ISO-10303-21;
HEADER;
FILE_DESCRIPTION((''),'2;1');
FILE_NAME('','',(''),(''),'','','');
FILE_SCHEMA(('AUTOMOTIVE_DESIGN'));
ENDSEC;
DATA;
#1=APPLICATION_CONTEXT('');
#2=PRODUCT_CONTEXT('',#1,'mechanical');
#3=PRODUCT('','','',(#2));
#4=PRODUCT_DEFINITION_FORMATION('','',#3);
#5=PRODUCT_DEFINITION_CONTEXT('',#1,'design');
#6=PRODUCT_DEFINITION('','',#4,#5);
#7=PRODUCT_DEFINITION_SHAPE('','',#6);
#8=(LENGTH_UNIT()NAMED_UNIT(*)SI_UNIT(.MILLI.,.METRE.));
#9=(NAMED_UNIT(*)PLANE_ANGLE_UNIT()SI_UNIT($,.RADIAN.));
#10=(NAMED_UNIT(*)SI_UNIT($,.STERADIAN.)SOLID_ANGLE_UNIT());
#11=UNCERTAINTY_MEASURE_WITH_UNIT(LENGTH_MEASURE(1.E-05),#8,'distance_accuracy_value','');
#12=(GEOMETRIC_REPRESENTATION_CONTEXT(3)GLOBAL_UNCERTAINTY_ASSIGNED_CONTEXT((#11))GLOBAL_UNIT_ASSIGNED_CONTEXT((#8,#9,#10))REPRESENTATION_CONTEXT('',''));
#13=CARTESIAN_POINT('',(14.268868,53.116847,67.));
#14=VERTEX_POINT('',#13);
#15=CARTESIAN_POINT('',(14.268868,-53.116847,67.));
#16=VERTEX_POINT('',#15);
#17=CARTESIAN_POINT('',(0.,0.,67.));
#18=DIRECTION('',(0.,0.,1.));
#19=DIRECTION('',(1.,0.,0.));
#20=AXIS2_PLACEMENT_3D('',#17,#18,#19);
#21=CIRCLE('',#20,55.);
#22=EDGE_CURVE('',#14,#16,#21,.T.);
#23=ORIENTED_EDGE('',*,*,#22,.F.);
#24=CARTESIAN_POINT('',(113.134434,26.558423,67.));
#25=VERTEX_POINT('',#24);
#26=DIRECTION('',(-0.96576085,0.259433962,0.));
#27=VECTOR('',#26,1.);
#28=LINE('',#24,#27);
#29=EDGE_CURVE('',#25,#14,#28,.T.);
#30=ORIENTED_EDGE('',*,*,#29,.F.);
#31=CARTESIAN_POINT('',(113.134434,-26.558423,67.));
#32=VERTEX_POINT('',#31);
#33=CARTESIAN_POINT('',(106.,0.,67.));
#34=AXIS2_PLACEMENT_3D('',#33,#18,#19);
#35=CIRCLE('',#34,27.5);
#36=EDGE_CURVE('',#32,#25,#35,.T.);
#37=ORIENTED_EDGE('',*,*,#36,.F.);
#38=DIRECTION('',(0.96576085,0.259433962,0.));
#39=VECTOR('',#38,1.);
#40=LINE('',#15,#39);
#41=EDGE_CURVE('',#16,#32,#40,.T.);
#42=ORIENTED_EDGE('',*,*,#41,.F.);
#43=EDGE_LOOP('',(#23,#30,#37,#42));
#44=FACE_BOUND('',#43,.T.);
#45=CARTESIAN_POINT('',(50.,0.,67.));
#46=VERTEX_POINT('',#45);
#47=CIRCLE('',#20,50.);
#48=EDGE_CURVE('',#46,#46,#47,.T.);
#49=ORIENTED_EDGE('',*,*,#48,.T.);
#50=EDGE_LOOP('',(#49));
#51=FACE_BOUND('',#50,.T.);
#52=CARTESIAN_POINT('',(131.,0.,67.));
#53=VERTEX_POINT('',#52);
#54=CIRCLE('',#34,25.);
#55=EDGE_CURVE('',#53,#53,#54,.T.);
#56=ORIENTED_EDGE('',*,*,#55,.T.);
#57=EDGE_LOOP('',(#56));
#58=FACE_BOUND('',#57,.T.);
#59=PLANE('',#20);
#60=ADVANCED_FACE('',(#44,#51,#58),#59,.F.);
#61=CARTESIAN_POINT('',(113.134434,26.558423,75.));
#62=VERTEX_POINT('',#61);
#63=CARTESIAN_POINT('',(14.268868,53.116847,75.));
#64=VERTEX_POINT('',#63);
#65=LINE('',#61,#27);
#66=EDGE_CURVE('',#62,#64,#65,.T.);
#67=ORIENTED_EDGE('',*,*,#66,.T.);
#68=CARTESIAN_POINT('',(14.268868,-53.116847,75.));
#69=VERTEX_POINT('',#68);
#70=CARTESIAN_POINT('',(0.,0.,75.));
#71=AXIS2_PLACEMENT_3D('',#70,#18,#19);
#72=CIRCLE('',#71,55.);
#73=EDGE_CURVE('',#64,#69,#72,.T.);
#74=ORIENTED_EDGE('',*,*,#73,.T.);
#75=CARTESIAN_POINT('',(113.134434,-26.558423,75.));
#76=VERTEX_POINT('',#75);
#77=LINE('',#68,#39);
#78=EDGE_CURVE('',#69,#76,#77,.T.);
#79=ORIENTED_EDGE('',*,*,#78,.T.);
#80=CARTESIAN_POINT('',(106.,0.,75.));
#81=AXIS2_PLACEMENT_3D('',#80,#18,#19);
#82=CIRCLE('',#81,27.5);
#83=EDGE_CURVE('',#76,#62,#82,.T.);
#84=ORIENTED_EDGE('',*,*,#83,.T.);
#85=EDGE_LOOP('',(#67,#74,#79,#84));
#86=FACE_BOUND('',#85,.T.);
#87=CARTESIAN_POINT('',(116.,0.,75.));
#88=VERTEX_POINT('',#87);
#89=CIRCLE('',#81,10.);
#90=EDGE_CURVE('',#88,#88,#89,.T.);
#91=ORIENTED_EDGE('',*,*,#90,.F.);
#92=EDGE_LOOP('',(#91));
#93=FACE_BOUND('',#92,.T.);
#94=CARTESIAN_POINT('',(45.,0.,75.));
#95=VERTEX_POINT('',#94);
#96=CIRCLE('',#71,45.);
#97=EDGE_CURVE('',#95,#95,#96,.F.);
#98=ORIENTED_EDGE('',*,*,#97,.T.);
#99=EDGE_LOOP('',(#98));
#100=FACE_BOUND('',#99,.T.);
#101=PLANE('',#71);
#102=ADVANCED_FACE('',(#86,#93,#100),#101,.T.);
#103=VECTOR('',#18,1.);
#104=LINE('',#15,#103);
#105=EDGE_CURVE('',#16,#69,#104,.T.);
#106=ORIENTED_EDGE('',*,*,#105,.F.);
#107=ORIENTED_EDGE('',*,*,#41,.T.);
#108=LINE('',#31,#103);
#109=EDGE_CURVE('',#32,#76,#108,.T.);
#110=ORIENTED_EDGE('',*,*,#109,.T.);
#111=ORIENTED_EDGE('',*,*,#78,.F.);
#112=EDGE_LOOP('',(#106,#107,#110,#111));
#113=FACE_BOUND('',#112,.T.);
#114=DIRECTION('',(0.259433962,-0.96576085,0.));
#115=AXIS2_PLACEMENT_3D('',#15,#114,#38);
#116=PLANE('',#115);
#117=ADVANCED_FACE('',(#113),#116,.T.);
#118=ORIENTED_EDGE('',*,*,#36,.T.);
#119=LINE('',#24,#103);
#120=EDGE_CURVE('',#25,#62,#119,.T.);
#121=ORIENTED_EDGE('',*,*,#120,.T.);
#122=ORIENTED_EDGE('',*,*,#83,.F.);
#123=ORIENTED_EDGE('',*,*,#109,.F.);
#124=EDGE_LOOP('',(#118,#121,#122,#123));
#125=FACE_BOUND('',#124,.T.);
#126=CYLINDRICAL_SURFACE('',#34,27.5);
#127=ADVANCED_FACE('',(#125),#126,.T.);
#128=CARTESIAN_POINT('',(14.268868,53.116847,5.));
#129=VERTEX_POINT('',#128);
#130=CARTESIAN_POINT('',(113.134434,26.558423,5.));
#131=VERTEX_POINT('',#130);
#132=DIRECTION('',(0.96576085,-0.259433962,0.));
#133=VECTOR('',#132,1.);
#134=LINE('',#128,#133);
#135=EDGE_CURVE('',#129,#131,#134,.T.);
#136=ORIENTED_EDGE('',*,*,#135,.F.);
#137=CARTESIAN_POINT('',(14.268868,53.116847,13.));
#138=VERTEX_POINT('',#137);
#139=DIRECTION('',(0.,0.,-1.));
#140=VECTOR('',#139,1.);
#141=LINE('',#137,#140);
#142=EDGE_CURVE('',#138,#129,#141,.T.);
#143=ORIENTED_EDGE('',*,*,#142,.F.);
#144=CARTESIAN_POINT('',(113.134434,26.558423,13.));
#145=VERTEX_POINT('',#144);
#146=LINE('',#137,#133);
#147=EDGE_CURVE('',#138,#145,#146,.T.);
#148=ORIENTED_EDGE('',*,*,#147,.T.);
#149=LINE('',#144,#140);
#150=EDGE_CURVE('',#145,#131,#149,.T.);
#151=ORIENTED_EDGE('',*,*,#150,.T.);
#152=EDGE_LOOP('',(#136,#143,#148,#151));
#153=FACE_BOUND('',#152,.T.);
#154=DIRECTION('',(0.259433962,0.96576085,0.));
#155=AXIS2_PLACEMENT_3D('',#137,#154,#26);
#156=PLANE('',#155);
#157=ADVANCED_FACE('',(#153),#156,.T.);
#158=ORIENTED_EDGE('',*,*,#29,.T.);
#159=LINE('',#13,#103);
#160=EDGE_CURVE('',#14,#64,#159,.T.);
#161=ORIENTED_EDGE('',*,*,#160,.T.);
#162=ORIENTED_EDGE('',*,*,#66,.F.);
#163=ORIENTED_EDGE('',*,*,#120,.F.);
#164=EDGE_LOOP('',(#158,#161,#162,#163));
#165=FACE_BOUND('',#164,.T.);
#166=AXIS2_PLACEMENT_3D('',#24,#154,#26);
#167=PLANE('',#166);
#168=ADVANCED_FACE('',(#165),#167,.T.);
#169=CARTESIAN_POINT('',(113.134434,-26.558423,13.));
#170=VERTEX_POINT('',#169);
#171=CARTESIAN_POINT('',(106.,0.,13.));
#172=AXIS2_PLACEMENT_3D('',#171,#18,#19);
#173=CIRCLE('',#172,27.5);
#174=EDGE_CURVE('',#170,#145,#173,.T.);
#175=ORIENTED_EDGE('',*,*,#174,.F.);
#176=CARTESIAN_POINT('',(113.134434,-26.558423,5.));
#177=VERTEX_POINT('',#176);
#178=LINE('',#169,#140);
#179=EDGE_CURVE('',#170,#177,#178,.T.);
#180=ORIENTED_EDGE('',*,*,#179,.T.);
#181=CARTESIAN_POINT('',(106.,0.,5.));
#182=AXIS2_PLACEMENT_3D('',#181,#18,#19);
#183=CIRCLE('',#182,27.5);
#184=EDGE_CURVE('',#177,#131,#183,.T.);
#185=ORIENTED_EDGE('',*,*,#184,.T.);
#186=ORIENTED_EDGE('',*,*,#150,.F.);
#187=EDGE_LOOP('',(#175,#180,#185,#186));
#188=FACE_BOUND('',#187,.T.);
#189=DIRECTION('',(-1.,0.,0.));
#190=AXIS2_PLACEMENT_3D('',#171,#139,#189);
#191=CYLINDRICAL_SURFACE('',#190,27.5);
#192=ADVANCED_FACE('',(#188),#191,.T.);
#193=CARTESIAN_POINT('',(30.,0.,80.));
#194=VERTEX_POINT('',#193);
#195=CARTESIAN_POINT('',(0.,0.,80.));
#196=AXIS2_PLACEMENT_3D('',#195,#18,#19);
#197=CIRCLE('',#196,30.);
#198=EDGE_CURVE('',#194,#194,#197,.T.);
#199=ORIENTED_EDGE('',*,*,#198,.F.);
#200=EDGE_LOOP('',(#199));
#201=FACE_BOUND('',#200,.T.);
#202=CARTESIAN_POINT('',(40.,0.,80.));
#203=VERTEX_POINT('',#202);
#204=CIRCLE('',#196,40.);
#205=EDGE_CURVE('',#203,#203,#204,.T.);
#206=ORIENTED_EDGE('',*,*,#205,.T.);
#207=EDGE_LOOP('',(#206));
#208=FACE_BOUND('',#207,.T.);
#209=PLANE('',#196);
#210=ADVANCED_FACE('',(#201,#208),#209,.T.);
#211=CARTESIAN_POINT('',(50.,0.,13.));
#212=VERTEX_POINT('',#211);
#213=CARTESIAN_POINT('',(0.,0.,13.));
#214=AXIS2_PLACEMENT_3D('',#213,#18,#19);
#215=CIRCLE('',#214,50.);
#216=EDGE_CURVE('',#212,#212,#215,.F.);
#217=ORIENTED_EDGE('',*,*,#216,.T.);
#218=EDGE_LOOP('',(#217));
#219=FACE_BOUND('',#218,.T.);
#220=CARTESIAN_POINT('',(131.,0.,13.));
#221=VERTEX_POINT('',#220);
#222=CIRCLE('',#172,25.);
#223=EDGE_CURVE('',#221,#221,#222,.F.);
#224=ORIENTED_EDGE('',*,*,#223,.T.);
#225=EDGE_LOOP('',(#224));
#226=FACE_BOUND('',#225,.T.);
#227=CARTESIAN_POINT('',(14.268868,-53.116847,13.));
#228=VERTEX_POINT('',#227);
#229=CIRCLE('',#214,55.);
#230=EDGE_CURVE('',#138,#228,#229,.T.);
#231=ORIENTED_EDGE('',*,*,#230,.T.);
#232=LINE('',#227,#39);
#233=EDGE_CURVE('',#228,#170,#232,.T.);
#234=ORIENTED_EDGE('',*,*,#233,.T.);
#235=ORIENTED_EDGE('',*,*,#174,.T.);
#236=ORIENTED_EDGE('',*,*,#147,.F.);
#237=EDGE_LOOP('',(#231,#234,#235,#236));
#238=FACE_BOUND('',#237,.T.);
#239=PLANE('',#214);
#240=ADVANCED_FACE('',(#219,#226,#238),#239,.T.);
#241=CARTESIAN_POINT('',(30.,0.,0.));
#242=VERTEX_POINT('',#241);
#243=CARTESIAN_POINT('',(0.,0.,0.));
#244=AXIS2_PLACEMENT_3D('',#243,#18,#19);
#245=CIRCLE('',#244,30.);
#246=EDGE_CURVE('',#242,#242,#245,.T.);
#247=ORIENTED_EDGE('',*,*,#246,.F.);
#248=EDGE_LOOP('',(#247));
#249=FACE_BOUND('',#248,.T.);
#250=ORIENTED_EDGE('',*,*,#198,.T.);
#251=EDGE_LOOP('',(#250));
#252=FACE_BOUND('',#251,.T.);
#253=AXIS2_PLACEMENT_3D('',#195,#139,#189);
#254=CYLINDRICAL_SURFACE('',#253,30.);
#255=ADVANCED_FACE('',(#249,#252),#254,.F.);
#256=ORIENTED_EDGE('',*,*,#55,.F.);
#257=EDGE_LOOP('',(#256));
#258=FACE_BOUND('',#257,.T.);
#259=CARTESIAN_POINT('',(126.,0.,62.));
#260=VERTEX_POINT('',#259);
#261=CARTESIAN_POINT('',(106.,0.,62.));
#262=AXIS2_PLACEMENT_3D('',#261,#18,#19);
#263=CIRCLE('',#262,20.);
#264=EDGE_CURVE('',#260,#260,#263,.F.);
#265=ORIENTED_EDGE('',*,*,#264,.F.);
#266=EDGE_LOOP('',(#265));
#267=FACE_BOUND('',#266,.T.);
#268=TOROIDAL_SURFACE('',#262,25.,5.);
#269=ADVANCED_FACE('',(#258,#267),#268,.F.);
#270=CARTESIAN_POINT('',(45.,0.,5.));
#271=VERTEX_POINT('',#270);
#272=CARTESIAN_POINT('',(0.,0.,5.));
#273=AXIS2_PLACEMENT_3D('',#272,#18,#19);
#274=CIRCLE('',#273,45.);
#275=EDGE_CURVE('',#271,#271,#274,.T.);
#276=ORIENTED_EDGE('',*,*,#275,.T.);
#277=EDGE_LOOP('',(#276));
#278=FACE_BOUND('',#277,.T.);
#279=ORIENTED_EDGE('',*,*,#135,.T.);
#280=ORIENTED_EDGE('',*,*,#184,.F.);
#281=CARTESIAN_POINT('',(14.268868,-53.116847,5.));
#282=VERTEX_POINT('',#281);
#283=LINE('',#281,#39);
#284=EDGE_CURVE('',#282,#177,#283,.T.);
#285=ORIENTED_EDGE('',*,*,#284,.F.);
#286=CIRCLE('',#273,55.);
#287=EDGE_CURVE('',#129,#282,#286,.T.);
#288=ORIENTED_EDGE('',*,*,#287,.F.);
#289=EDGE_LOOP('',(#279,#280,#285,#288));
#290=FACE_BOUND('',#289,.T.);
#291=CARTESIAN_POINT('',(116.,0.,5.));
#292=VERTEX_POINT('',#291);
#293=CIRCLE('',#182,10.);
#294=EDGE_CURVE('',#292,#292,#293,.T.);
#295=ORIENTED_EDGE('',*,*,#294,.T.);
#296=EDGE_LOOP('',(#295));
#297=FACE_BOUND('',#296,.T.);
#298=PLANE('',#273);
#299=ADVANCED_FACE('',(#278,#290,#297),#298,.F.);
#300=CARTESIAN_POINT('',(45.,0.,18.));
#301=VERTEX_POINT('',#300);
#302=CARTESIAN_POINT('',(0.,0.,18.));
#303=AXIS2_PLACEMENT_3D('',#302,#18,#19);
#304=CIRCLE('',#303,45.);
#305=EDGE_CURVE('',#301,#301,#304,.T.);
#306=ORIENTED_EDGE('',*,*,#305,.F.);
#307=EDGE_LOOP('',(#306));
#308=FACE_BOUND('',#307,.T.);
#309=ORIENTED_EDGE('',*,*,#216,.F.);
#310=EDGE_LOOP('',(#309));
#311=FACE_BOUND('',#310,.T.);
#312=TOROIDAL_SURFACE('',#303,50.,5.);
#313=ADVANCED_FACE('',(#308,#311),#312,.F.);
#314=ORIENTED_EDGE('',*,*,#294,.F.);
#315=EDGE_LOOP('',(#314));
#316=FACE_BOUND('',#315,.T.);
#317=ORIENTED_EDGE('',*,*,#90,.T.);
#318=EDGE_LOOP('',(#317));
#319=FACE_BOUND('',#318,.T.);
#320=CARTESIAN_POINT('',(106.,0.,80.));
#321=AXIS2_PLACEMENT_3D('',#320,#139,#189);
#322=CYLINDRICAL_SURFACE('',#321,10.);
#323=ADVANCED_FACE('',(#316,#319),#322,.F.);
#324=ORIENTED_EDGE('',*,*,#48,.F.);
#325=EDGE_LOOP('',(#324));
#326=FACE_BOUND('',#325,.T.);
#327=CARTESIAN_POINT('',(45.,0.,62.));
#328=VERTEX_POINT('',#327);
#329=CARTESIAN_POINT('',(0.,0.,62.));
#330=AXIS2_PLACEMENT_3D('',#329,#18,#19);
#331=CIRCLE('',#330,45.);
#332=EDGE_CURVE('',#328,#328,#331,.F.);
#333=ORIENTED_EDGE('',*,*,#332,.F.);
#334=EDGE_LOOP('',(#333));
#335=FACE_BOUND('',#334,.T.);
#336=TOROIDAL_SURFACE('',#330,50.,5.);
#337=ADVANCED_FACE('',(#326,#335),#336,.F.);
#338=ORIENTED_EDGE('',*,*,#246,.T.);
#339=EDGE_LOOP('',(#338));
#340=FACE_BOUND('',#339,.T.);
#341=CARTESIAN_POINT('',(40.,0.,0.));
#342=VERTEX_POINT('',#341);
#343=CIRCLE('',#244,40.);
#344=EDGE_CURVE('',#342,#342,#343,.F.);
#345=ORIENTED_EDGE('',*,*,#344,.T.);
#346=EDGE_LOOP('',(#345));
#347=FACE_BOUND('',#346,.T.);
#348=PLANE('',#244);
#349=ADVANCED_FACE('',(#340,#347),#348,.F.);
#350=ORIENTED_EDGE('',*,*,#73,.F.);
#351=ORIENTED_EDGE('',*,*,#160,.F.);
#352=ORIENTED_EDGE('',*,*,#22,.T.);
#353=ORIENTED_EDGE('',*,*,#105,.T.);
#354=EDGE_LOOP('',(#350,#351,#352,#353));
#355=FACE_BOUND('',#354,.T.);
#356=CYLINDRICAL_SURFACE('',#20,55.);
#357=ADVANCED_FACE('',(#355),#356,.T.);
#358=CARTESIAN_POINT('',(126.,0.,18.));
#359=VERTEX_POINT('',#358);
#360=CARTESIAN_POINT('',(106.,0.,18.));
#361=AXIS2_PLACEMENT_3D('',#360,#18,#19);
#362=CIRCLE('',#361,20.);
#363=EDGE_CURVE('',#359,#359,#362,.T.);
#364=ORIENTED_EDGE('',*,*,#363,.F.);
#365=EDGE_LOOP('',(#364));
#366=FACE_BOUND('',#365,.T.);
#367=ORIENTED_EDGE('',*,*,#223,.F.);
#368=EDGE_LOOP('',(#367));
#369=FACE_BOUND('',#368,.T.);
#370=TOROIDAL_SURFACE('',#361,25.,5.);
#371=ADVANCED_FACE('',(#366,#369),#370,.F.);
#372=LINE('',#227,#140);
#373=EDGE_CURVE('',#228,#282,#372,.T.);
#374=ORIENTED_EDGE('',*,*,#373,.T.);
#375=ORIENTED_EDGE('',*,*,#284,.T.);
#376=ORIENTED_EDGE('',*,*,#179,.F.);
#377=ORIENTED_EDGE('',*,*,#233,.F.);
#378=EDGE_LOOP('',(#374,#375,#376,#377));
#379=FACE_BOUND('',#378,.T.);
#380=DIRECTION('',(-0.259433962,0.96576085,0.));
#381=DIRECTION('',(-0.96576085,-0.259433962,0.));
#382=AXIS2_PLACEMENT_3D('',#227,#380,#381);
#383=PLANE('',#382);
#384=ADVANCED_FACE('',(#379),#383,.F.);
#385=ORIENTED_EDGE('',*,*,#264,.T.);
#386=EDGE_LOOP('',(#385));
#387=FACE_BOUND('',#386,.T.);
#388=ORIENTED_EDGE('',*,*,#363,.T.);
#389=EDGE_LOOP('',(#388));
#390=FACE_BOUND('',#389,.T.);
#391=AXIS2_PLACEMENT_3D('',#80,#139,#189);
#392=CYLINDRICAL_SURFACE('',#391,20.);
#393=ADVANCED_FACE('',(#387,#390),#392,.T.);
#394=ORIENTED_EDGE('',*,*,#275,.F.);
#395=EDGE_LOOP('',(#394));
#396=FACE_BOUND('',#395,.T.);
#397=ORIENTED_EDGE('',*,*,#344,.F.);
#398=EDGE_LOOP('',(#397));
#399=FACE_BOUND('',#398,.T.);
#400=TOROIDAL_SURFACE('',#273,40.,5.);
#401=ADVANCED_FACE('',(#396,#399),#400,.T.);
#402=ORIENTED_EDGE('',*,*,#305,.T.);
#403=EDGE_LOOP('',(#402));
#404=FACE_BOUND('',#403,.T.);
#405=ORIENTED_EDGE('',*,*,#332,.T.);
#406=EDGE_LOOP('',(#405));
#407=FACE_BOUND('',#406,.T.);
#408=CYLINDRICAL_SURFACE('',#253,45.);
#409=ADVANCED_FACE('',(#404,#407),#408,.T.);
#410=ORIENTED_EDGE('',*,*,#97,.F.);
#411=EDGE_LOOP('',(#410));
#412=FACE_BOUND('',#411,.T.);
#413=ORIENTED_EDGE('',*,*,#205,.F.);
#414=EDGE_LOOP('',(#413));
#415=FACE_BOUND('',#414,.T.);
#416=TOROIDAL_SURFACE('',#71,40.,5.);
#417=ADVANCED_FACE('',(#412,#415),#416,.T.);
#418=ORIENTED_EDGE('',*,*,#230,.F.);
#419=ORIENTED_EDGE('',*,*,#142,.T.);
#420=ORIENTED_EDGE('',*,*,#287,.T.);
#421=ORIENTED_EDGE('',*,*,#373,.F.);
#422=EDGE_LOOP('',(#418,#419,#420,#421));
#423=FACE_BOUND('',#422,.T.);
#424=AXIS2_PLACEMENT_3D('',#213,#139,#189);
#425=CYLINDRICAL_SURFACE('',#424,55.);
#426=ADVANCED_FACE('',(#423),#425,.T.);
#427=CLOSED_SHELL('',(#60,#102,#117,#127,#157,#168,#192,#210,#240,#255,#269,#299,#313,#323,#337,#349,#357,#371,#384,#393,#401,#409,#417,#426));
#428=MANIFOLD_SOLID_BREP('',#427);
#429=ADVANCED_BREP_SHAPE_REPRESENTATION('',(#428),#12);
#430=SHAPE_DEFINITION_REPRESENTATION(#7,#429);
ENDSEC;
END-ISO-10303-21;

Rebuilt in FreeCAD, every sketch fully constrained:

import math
import FreeCAD as App
import Part
import Sketcher

V = App.Vector
Q = App.Units.Quantity


def edges_at(feature, points):
    """Names of the edges that pass closest to the given points."""
    edges = feature.Shape.Edges
    near = lambda p: min(range(len(edges)), key=lambda i: edges[i].distToShape(Part.Vertex(*p))[0])
    return sorted({f"Edge{near(p) + 1}" for p in points})

doc = App.newDocument("Part")
body = doc.addObject("PartDesign::Body", "Body")

sketch1 = doc.addObject("Sketcher::SketchObject", "Sketch")
body.addObject(sketch1)
sketch1.AttachmentSupport = (doc.XY_Plane, [""])
sketch1.MapMode = "FlatFace"
sketch1.addGeometry(Part.Circle(V(0, 0, 0), V(0, 0, 1), 45), False)
sketch1.addGeometry(Part.Circle(V(0, 0, 0), V(0, 0, 1), 30), False)
sketch1.addConstraint(Sketcher.Constraint("Coincident", 0, 3, -1, 1))
sketch1.addConstraint(Sketcher.Constraint("Coincident", 1, 3, -1, 1))
sketch1.addConstraint(Sketcher.Constraint("Diameter", 0, Q("90 mm")))
sketch1.addConstraint(Sketcher.Constraint("Diameter", 1, Q("60 mm")))
pad1 = doc.addObject("PartDesign::Pad", "Pad")
body.addObject(pad1)
pad1.Profile = sketch1
pad1.Length = 80
doc.recompute()

fillet = doc.addObject("PartDesign::Fillet", "Fillet")
body.addObject(fillet)
fillet.Base = (pad1, edges_at(pad1, [(-45, 0, 80), (-45, 0, 0)]))
fillet.Radius = 5

sketch2 = doc.addObject("Sketcher::SketchObject", "Sketch001")
body.addObject(sketch2)
sketch2.AttachmentSupport = (doc.XY_Plane, [""])
sketch2.MapMode = "FlatFace"
sketch2.AttachmentOffset = App.Placement(V(0, 0, 5), App.Rotation())
sketch2.addGeometry(Part.ArcOfCircle(Part.Circle(V(0, 0, 0), V(0, 0, 1), 55), math.radians(75), math.radians(285)), False)
sketch2.addGeometry(Part.LineSegment(V(14, -53, 0), V(113, -27, 0)), False)
sketch2.addGeometry(Part.ArcOfCircle(Part.Circle(V(106, 0, 0), V(0, 0, 1), 28), math.radians(-75), math.radians(75)), False)
sketch2.addGeometry(Part.LineSegment(V(113, 27, 0), V(14, 53, 0)), False)
sketch2.addGeometry(Part.Circle(V(0, 0, 0), V(0, 0, 1), 45), False)
sketch2.addGeometry(Part.Circle(V(106, 0, 0), V(0, 0, 1), 10), False)
sketch2.addConstraint(Sketcher.Constraint("Tangent", 0, 2, 1, 1))
sketch2.addConstraint(Sketcher.Constraint("Tangent", 1, 2, 2, 1))
sketch2.addConstraint(Sketcher.Constraint("Tangent", 2, 2, 3, 1))
sketch2.addConstraint(Sketcher.Constraint("Tangent", 3, 2, 0, 1))
sketch2.addConstraint(Sketcher.Constraint("Coincident", 0, 3, -1, 1))
sketch2.addConstraint(Sketcher.Constraint("Coincident", 4, 3, -1, 1))
sketch2.addConstraint(Sketcher.Constraint("Coincident", 5, 3, 2, 3))
sketch2.addConstraint(Sketcher.Constraint("PointOnObject", 2, 3, -1))
sketch2.addConstraint(Sketcher.Constraint("Diameter", 4, Q("90 mm")))
sketch2.addConstraint(Sketcher.Constraint("Diameter", 5, Q("20 mm")))
sketch2.addConstraint(Sketcher.Constraint("Radius", 0, Q("55 mm")))
sketch2.addConstraint(Sketcher.Constraint("Radius", 2, Q("27.5 mm")))
sketch2.addConstraint(Sketcher.Constraint("DistanceX", -1, 1, 2, 3, Q("106 mm")))
pad2 = doc.addObject("PartDesign::Pad", "Pad001")
body.addObject(pad2)
pad2.Profile = sketch2
pad2.Length = 8

sketch3 = doc.addObject("Sketcher::SketchObject", "Sketch002")
body.addObject(sketch3)
sketch3.AttachmentSupport = (doc.XY_Plane, [""])
sketch3.MapMode = "FlatFace"
sketch3.AttachmentOffset = App.Placement(V(0, 0, 67), App.Rotation())
sketch3.addGeometry(Part.LineSegment(V(14, -53, 0), V(113, -27, 0)), False)
sketch3.addGeometry(Part.ArcOfCircle(Part.Circle(V(106, 0, 0), V(0, 0, 1), 28), math.radians(-75), math.radians(75)), False)
sketch3.addGeometry(Part.LineSegment(V(113, 27, 0), V(14, 53, 0)), False)
sketch3.addGeometry(Part.ArcOfCircle(Part.Circle(V(0, 0, 0), V(0, 0, 1), 55), math.radians(75), math.radians(285)), False)
sketch3.addGeometry(Part.Circle(V(0, 0, 0), V(0, 0, 1), 30), False)
sketch3.addGeometry(Part.Circle(V(106, 0, 0), V(0, 0, 1), 10), False)
sketch3.addConstraint(Sketcher.Constraint("Tangent", 0, 2, 1, 1))
sketch3.addConstraint(Sketcher.Constraint("Tangent", 1, 2, 2, 1))
sketch3.addConstraint(Sketcher.Constraint("Tangent", 2, 2, 3, 1))
sketch3.addConstraint(Sketcher.Constraint("Tangent", 3, 2, 0, 1))
sketch3.addConstraint(Sketcher.Constraint("Coincident", 3, 3, -1, 1))
sketch3.addConstraint(Sketcher.Constraint("Coincident", 4, 3, -1, 1))
sketch3.addConstraint(Sketcher.Constraint("Coincident", 5, 3, 1, 3))
sketch3.addConstraint(Sketcher.Constraint("PointOnObject", 1, 3, -1))
sketch3.addConstraint(Sketcher.Constraint("Diameter", 4, Q("60 mm")))
sketch3.addConstraint(Sketcher.Constraint("Diameter", 5, Q("20 mm")))
sketch3.addConstraint(Sketcher.Constraint("Radius", 3, Q("55 mm")))
sketch3.addConstraint(Sketcher.Constraint("Radius", 1, Q("27.5 mm")))
sketch3.addConstraint(Sketcher.Constraint("DistanceX", -1, 1, 1, 3, Q("106 mm")))
pad3 = doc.addObject("PartDesign::Pad", "Pad002")
body.addObject(pad3)
pad3.Profile = sketch3
pad3.Length = 8

sketch4 = doc.addObject("Sketcher::SketchObject", "Sketch003")
body.addObject(sketch4)
sketch4.AttachmentSupport = (doc.XY_Plane, [""])
sketch4.MapMode = "FlatFace"
sketch4.AttachmentOffset = App.Placement(V(0, 0, 5), App.Rotation())
sketch4.addGeometry(Part.Circle(V(106, 0, 0), V(0, 0, 1), 20), False)
sketch4.addConstraint(Sketcher.Constraint("PointOnObject", 0, 3, -1))
sketch4.addConstraint(Sketcher.Constraint("Diameter", 0, Q("40 mm")))
sketch4.addConstraint(Sketcher.Constraint("DistanceX", -1, 1, 0, 3, Q("106 mm")))
pad4 = doc.addObject("PartDesign::Pad", "Pad003")
body.addObject(pad4)
pad4.Profile = sketch4
pad4.Length = 70

sketch5 = doc.addObject("Sketcher::SketchObject", "Sketch004")
body.addObject(sketch5)
sketch5.AttachmentSupport = (doc.XY_Plane, [""])
sketch5.MapMode = "FlatFace"
sketch5.AttachmentOffset = App.Placement(V(0, 0, 5), App.Rotation())
sketch5.addGeometry(Part.Circle(V(106, 0, 0), V(0, 0, 1), 10), False)
sketch5.addConstraint(Sketcher.Constraint("PointOnObject", 0, 3, -1))
sketch5.addConstraint(Sketcher.Constraint("Diameter", 0, Q("20 mm")))
sketch5.addConstraint(Sketcher.Constraint("DistanceX", -1, 1, 0, 3, Q("106 mm")))
pocket1 = doc.addObject("PartDesign::Pocket", "Pocket")
body.addObject(pocket1)
pocket1.Profile = sketch5
pocket1.Type = "ThroughAll"
pocket1.Midplane = True
doc.recompute()

fillet2 = doc.addObject("PartDesign::Fillet", "Fillet001")
body.addObject(fillet2)
fillet2.Base = (pocket1, edges_at(pocket1, [
    (-45, 0, 13),
    (-45, 0, 67),
    (86, 0, 13),
    (86, 0, 67),
]))
fillet2.Radius = 5

doc.recompute()
